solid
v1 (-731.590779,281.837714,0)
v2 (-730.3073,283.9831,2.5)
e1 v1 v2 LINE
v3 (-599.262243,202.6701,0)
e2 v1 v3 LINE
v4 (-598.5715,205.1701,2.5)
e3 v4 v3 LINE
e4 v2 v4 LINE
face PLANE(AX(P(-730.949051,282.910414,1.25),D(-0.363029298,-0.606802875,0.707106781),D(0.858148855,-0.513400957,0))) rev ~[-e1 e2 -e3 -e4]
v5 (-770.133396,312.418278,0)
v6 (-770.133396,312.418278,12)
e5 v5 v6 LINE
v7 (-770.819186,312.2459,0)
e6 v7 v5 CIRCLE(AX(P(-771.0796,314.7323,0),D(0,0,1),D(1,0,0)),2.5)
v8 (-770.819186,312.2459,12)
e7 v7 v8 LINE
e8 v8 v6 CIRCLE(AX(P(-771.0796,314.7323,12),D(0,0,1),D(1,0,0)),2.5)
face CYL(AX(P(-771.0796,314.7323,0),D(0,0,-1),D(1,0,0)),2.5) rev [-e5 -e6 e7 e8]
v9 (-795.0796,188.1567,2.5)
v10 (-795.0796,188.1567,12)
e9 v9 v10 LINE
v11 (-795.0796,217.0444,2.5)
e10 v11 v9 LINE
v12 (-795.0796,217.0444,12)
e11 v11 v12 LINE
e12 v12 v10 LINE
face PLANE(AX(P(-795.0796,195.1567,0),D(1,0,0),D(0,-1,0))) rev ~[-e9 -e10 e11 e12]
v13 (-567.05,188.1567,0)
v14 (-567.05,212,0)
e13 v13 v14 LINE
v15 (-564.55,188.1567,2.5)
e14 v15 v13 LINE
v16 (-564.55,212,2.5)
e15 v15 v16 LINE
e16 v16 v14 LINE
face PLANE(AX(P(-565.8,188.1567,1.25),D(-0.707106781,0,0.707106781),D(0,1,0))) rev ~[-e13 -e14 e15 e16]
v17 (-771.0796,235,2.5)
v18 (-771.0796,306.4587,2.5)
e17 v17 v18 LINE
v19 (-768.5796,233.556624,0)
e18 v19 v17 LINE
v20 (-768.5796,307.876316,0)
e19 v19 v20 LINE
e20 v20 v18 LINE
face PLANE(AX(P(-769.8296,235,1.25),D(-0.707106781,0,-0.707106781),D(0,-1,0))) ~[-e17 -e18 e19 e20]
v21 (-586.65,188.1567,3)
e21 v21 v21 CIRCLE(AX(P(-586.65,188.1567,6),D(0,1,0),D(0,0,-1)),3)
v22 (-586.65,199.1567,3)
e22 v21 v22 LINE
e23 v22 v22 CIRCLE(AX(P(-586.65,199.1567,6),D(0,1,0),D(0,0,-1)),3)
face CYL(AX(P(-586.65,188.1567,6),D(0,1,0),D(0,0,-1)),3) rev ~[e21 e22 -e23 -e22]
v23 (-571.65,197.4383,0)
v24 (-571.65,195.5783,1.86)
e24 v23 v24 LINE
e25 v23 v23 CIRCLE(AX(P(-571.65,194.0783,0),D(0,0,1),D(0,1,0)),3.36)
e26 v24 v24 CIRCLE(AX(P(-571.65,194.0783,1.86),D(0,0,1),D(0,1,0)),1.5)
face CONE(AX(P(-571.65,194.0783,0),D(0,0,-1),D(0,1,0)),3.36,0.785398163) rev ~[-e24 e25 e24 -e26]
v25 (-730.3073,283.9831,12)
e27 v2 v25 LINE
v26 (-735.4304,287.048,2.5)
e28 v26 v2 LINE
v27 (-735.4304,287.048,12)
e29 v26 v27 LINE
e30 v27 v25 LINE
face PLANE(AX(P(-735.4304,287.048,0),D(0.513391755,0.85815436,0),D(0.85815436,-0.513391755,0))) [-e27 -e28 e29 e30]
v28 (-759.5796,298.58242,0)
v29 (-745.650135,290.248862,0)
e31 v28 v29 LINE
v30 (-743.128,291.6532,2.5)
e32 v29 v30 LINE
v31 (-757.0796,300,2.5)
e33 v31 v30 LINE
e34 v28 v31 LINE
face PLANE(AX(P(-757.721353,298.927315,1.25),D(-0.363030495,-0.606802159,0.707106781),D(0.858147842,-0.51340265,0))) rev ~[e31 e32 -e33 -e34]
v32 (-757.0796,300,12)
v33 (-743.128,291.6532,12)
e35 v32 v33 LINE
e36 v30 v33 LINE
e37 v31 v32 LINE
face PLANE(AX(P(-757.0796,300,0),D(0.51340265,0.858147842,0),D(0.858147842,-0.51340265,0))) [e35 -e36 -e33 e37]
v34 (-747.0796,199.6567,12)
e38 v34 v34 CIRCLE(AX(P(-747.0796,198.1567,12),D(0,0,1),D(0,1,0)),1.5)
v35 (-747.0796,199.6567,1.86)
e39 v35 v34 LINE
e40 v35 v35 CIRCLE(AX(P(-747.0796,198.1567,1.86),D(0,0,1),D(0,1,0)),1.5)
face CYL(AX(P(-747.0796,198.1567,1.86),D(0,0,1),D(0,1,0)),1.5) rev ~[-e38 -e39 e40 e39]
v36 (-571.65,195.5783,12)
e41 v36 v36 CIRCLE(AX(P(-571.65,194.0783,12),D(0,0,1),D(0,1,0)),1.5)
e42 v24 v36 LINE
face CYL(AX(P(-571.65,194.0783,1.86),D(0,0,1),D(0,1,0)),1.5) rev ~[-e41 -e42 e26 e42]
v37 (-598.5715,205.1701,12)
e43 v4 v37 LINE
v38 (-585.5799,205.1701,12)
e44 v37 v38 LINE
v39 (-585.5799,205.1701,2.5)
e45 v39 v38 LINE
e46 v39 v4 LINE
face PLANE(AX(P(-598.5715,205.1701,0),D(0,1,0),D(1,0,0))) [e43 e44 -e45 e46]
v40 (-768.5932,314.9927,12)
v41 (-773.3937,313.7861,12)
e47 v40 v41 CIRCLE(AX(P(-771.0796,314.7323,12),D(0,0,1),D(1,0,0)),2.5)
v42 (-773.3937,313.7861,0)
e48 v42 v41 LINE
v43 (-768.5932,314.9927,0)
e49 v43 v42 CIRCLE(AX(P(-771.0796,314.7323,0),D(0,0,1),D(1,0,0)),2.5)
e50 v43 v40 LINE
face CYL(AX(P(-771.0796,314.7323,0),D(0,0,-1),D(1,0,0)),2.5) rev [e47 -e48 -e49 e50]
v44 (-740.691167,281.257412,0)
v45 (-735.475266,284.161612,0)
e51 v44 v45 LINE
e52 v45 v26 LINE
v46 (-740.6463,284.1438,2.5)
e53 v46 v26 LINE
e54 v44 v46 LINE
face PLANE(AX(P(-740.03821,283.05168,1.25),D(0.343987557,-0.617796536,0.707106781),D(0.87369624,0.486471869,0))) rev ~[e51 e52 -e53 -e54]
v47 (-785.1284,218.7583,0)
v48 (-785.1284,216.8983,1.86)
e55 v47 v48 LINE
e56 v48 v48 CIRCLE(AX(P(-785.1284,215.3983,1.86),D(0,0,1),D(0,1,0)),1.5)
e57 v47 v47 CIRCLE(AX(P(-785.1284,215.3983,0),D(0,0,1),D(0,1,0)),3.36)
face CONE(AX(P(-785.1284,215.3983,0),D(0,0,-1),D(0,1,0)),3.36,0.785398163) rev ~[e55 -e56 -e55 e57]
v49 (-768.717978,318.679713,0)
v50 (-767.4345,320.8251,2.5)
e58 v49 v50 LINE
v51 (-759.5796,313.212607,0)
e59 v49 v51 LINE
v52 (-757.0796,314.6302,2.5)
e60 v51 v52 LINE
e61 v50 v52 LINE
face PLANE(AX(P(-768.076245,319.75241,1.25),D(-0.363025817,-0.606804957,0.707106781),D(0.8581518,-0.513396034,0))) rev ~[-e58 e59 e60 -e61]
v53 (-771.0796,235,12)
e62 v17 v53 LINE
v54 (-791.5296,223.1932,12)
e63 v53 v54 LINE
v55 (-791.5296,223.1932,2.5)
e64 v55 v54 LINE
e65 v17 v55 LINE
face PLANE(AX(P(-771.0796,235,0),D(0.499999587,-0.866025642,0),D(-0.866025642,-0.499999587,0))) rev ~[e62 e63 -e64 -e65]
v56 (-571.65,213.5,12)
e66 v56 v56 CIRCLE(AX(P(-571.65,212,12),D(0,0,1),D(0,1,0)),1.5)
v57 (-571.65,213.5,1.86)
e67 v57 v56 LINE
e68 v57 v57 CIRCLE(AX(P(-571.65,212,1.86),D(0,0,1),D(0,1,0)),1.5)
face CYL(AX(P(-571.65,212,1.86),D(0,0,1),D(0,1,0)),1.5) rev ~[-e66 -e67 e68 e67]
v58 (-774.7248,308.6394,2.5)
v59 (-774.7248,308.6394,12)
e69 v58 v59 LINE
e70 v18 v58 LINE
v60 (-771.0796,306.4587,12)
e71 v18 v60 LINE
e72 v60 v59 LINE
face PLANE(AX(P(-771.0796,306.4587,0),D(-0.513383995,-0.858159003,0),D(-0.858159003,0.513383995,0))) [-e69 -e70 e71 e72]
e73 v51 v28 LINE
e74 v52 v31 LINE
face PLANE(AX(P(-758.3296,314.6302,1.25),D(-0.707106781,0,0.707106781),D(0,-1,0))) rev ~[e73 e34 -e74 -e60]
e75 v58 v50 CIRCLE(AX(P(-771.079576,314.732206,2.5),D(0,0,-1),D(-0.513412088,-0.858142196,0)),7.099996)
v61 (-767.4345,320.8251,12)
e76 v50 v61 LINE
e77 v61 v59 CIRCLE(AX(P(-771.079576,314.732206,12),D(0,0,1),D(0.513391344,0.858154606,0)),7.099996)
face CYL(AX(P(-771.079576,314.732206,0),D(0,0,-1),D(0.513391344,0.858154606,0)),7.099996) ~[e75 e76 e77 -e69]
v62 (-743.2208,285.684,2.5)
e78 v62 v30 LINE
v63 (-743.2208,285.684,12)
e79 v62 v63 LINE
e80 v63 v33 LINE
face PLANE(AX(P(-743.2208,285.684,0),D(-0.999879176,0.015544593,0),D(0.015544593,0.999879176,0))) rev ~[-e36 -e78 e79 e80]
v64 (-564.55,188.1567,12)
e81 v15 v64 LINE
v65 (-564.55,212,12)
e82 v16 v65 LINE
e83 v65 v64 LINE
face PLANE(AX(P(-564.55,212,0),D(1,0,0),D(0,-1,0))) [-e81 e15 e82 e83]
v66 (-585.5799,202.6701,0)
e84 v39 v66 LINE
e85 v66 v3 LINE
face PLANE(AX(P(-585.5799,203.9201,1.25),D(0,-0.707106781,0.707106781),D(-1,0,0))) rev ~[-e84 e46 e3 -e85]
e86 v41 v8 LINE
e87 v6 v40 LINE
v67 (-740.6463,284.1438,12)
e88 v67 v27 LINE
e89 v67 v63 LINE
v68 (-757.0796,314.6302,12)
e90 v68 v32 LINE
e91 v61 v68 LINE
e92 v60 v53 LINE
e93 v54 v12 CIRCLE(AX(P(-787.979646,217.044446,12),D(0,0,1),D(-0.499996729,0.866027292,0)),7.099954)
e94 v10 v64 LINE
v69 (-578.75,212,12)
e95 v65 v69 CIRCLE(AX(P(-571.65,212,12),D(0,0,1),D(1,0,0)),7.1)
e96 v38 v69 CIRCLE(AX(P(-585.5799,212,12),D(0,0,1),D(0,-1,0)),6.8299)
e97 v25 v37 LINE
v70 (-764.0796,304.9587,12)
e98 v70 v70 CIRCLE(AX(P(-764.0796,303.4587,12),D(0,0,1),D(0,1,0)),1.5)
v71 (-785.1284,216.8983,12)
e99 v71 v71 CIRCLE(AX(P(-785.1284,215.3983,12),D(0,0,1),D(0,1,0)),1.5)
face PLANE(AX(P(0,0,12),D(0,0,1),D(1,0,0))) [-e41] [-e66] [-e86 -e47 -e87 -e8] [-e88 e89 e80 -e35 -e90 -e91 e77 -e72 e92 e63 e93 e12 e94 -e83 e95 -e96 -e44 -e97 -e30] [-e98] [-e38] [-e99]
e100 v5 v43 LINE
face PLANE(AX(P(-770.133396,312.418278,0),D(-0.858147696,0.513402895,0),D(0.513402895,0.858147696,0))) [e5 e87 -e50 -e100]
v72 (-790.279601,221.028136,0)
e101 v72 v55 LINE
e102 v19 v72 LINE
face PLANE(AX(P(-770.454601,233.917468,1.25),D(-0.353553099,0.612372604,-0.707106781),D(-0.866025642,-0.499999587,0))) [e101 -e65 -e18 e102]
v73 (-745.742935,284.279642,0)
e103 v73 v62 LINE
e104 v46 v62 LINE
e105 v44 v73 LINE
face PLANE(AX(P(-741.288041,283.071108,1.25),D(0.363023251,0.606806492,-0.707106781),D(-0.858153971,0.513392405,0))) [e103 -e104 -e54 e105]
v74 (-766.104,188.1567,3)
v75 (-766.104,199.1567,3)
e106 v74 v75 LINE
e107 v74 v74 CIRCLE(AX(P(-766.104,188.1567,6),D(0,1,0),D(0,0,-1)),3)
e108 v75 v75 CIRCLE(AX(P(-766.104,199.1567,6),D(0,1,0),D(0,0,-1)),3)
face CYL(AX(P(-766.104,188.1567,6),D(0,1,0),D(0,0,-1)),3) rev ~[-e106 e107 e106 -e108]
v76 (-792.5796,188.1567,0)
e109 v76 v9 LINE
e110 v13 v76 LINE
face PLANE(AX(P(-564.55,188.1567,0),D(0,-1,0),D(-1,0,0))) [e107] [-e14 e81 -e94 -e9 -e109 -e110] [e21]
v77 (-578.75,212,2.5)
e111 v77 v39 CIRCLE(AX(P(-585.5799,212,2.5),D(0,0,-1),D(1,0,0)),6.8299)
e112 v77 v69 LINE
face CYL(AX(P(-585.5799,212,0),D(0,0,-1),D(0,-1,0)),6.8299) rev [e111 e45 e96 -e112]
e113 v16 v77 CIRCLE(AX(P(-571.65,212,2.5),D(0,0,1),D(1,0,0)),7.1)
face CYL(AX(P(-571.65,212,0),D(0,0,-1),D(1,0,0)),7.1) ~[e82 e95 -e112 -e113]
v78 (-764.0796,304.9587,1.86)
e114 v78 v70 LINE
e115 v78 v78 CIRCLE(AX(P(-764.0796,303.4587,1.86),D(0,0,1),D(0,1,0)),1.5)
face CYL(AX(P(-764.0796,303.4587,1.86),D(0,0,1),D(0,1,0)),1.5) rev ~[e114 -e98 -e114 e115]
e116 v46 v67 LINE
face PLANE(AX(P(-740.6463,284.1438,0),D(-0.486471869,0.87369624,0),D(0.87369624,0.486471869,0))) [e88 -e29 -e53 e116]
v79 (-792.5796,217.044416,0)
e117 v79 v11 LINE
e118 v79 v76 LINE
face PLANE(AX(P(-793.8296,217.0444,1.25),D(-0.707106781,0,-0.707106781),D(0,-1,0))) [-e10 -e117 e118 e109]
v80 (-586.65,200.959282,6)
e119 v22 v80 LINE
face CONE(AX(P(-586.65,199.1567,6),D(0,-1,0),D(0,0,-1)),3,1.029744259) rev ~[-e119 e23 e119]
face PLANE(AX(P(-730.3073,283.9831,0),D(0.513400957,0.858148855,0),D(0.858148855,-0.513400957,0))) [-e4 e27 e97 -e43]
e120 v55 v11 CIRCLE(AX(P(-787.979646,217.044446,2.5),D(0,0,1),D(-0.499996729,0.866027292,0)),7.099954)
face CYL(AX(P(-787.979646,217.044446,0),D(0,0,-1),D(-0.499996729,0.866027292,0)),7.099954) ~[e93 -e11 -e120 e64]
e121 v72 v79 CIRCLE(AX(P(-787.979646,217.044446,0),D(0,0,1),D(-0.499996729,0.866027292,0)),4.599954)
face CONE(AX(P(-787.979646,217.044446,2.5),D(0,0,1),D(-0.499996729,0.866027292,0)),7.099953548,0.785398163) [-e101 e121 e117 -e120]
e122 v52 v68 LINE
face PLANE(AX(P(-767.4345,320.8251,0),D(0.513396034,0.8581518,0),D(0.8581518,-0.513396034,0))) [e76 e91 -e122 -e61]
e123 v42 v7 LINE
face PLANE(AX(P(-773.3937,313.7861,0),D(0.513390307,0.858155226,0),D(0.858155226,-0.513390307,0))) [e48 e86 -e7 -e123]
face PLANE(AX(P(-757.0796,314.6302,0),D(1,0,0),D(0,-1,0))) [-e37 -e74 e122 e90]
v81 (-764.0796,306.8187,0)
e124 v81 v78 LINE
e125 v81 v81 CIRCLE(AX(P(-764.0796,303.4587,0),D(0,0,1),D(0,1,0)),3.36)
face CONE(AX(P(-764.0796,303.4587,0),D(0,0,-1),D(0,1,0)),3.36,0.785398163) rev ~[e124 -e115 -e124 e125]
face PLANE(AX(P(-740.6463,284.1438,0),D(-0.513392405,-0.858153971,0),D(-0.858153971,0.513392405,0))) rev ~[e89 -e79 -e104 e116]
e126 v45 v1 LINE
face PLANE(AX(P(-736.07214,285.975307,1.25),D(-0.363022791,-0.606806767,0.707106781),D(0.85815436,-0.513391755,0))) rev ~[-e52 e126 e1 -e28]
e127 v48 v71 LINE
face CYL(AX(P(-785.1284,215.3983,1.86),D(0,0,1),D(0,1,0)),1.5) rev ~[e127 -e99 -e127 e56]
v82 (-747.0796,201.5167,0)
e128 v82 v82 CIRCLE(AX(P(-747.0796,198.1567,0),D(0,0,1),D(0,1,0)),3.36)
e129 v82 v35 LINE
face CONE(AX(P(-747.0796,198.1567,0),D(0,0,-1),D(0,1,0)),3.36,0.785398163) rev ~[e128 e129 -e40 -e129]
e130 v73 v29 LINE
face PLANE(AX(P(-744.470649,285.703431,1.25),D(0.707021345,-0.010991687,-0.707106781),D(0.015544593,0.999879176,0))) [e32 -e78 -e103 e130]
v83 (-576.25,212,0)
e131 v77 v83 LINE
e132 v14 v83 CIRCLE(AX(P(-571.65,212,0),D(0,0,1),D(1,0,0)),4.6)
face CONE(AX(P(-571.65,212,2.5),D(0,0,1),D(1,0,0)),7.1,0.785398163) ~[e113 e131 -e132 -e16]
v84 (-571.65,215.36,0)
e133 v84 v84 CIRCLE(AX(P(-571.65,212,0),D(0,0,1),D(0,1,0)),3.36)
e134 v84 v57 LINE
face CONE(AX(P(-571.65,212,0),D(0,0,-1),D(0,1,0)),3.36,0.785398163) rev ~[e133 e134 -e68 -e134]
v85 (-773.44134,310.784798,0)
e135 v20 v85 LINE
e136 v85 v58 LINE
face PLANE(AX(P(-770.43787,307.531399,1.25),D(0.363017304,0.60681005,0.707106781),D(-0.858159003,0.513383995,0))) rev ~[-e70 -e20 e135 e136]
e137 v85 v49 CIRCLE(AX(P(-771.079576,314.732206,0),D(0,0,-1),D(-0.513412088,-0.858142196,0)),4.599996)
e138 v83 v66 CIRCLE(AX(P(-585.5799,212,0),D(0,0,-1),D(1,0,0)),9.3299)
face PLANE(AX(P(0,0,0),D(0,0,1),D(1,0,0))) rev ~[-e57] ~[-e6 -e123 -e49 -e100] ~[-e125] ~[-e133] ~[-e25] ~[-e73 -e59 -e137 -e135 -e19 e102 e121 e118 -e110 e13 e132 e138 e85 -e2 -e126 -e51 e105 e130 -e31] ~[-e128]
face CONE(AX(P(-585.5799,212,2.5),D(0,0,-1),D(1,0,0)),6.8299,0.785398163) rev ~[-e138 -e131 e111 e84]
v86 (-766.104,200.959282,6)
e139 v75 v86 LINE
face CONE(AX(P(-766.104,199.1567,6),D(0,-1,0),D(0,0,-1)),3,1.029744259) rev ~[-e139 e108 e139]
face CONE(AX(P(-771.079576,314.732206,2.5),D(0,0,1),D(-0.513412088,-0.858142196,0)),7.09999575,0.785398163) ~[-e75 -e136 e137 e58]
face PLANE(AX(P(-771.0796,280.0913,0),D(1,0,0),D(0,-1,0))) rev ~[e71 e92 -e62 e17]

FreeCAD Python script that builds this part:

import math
import FreeCAD as App
import Part
import Sketcher
from FreeCAD import Vector
Q = App.Units.Quantity


def edges_at(feature, points):
    """Names of the edges that pass closest to the given points."""
    edges = feature.Shape.Edges
    near = lambda p: min(range(len(edges)), key=lambda i: edges[i].distToShape(Part.Vertex(*p))[0])
    return sorted({f"Edge{near(p) + 1}" for p in points})

doc = App.newDocument("Part")
body = doc.addObject("PartDesign::Body", "Body")

# Sketch on XY plane
sketch1 = body.newObject("Sketcher::SketchObject", "Sketch")
sketch1.AttachmentSupport = (doc.getObject("XY_Plane"), [""])
sketch1.MapMode = "FlatFace"
sketch1.addGeometry([
    Part.ArcOfCircle(Part.Circle(Vector(-571.6, 212, 0), Vector(0, 0, 1), 7.1), math.radians(0), math.radians(180)),  # 0
    Part.ArcOfCircle(Part.Circle(Vector(-585.6, 212, 0), Vector(0, 0, 1), 6.8), math.radians(-90), math.radians(0)),  # 1
    Part.LineSegment(Vector(-585.6, 205.2, 0), Vector(-598.6, 205.2, 0)),  # 2
    Part.LineSegment(Vector(-598.6, 205.2, 0), Vector(-730.3, 284, 0)),  # 3
    Part.LineSegment(Vector(-730.3, 284, 0), Vector(-735.4, 287, 0)),  # 4
    Part.LineSegment(Vector(-735.4, 287, 0), Vector(-740.6, 284.1, 0)),  # 5
    Part.LineSegment(Vector(-740.6, 284.1, 0), Vector(-743.2, 285.7, 0)),  # 6
    Part.LineSegment(Vector(-743.2, 285.7, 0), Vector(-743.1, 291.7, 0)),  # 7
    Part.LineSegment(Vector(-743.1, 291.7, 0), Vector(-757.1, 300, 0)),  # 8
    Part.LineSegment(Vector(-757.1, 300, 0), Vector(-757.1, 314.6, 0)),  # 9
    Part.LineSegment(Vector(-757.1, 314.6, 0), Vector(-767.4, 320.8, 0)),  # 10
    Part.ArcOfCircle(Part.Circle(Vector(-771.1, 314.7, 0), Vector(0, 0, 1), 7.1), math.radians(59), math.radians(239)),  # 11
    Part.LineSegment(Vector(-774.7, 308.6, 0), Vector(-771.1, 306.5, 0)),  # 12
    Part.LineSegment(Vector(-771.1, 306.5, 0), Vector(-771.1, 235, 0)),  # 13
    Part.LineSegment(Vector(-771.1, 235, 0), Vector(-791.5, 223.2, 0)),  # 14
    Part.ArcOfCircle(Part.Circle(Vector(-788, 217, 0), Vector(0, 0, 1), 7.1), math.radians(120), math.radians(180)),  # 15
    Part.LineSegment(Vector(-795.1, 217, 0), Vector(-795.1, 188.2, 0)),  # 16
    Part.LineSegment(Vector(-795.1, 188.2, 0), Vector(-564.5, 188.2, 0)),  # 17
    Part.LineSegment(Vector(-564.5, 188.2, 0), Vector(-564.5, 212, 0)),  # 18
    Part.ArcOfCircle(Part.Circle(Vector(-771.1, 314.7, 0), Vector(0, 0, 1), 2.5), math.radians(6), math.radians(202)),  # 19
    Part.LineSegment(Vector(-768.6, 315, 0), Vector(-770.1, 312.4, 0)),  # 20
    Part.ArcOfCircle(Part.Circle(Vector(-771.1, 314.7, 0), Vector(0, 0, 1), 2.5), math.radians(-84.02), math.radians(-67.76)),  # 21
    Part.LineSegment(Vector(-770.8, 312.2, 0), Vector(-773.4, 313.8, 0)),  # 22
], False)
sketch1.addConstraint([
    Sketcher.Constraint("Tangent", 0, 2, 1, 2),
    Sketcher.Constraint("Tangent", 1, 1, 2, 1),
    Sketcher.Constraint("Coincident", 2, 2, 3, 1),
    Sketcher.Constraint("Coincident", 3, 2, 4, 1),
    Sketcher.Constraint("Coincident", 4, 2, 5, 1),
    Sketcher.Constraint("Coincident", 5, 2, 6, 1),
    Sketcher.Constraint("Coincident", 6, 2, 7, 1),
    Sketcher.Constraint("Coincident", 7, 2, 8, 1),
    Sketcher.Constraint("Coincident", 8, 2, 9, 1),
    Sketcher.Constraint("Coincident", 9, 2, 10, 1),
    Sketcher.Constraint("Tangent", 10, 2, 11, 1),
    Sketcher.Constraint("Tangent", 11, 2, 12, 1),
    Sketcher.Constraint("Coincident", 12, 2, 13, 1),
    Sketcher.Constraint("Coincident", 13, 2, 14, 1),
    Sketcher.Constraint("Tangent", 14, 2, 15, 1),
    Sketcher.Constraint("Tangent", 15, 2, 16, 1),
    Sketcher.Constraint("Coincident", 16, 2, 17, 1),
    Sketcher.Constraint("Coincident", 17, 2, 18, 1),
    Sketcher.Constraint("Tangent", 18, 2, 0, 1),
    Sketcher.Constraint("Coincident", 19, 1, 20, 1),
    Sketcher.Constraint("Coincident", 20, 2, 21, 2),
    Sketcher.Constraint("Coincident", 21, 1, 22, 1),
    Sketcher.Constraint("Coincident", 22, 2, 19, 2),
    Sketcher.Constraint("Horizontal", 2),
    Sketcher.Constraint("Vertical", 9),
    Sketcher.Constraint("Vertical", 13),
    Sketcher.Constraint("Vertical", 16),
    Sketcher.Constraint("Horizontal", 17),
    Sketcher.Constraint("Vertical", 18),
    Sketcher.Constraint("Coincident", 19, 3, 11, 3),
    Sketcher.Constraint("Coincident", 21, 3, 11, 3),
    Sketcher.Constraint("Equal", 0, 11),
    Sketcher.Constraint("Equal", 11, 15),
    Sketcher.Constraint("Equal", 19, 21),
    Sketcher.Constraint("Parallel", 3, 4),
    Sketcher.Constraint("Parallel", 4, 6),
    Sketcher.Constraint("Parallel", 6, 8),
    Sketcher.Constraint("Parallel", 8, 10),
    Sketcher.Constraint("Parallel", 10, 12),
    Sketcher.Constraint("Perpendicular", 12, 20),
    Sketcher.Constraint("Perpendicular", 20, 22),
    Sketcher.Constraint("Horizontal", 0, 3, 1, 3),
    Sketcher.Constraint("Vertical", 21, 3, 12, 2),
    Sketcher.Constraint("Equal", 4, 5),
    Sketcher.Constraint("Equal", 5, 7),
    Sketcher.Constraint("Equal", 6, 20),
    Sketcher.Constraint("Equal", 20, 22),
    Sketcher.Constraint("Radius", 0, 7.1),
    Sketcher.Constraint("Radius", 19, 2.5),
    Sketcher.Constraint("Distance", 6, 3.0),
    Sketcher.Constraint("DistanceY", -1, 1, 8, 2, 300.0),
    Sketcher.Constraint("DistanceX", 11, 3, 8, 2, 14.0),
    Sketcher.Constraint("DistanceX", 15, 2, 13, 2, 24.0),
    Sketcher.Constraint("Angle", 20, Q("-120.8908 deg")),
    Sketcher.Constraint("Angle", 14, Q("-150 deg")),
    Sketcher.Constraint("Radius", 1, 6.83),
    Sketcher.Constraint("DistanceY", -1, 1, 0, 3, 212.0),
    Sketcher.Constraint("DistanceY", -1, 1, 13, 2, 235.0),
    Sketcher.Constraint("DistanceY", 8, 2, 10, 2, 20.825),
    Sketcher.Constraint("Angle", 5, Q("-150.891 deg")),
    Sketcher.Constraint("Angle", 7, Q("89.1093 deg")),
    Sketcher.Constraint("Distance", 4, 5.97),
    Sketcher.Constraint("DistanceX", 0, 3, -1, 1, 571.65),
    Sketcher.Constraint("DistanceY", 14, 2, 7, 2, 68.46),
    Sketcher.Constraint("DistanceX", 2, 2, 2, 1, 12.9916),
    Sketcher.Constraint("DistanceY", 16, 2, 16, 1, 28.8877),
])
pad1 = body.newObject("PartDesign::Pad", "Pad")
pad1.Profile = sketch1
pad1.Length = 12
doc.recompute()

chamfer = body.newObject("PartDesign::Chamfer", "Chamfer")
chamfer.Base = (pad1, edges_at(pad1, [
    (-564.55, 200.078, 0),
    (-571.65, 219.1, 0),
    (-580.75, 207.171, 0),
    (-592.076, 205.17, 0),
    (-667.001, 246.109, 0),
    (-743.174, 288.669, 0),
    (-741.933, 284.914, 0),
    (-738.038, 285.596, 0),
    (-750.104, 295.827, 0),
    (-757.08, 307.315, 0),
    (-762.257, 317.728, 0),
    (-777.173, 318.377, 0),
    (-772.902, 307.549, 0),
    (-771.08, 270.729, 0),
    (-781.305, 229.097, 0),
    (-794.128, 220.594, 0),
    (-795.08, 202.601, 0),
]))
chamfer.Size = 2.5

# Sketch on XY plane
sketch2 = body.newObject("Sketcher::SketchObject", "Sketch001")
sketch2.AttachmentSupport = (doc.getObject("XY_Plane"), [""])
sketch2.MapMode = "FlatFace"
sketch2.addGeometry([
    Part.Circle(Vector(-571.6, 212, 0), Vector(0, 0, 1), 1.5),  # 0
    Part.Circle(Vector(-571.6, 194.1, 0), Vector(0, 0, 1), 1.5),  # 1
    Part.Circle(Vector(-747.1, 198.2, 0), Vector(0, 0, 1), 1.5),  # 2
    Part.Circle(Vector(-785.1, 215.4, 0), Vector(0, 0, 1), 1.5),  # 3
    Part.Circle(Vector(-764.1, 303.5, 0), Vector(0, 0, 1), 1.5),  # 4
], False)
sketch2.addConstraint([
    Sketcher.Constraint("Equal", 0, 1),
    Sketcher.Constraint("Equal", 1, 2),
    Sketcher.Constraint("Equal", 2, 3),
    Sketcher.Constraint("Equal", 3, 4),
    Sketcher.Constraint("Vertical", 0, 3, 1, 3),
    Sketcher.Constraint("Diameter", 0, 3.0),
    Sketcher.Constraint("DistanceY", -1, 1, 0, 3, 212.0),
    Sketcher.Constraint("DistanceX", 4, 3, 2, 3, 17.0),
    Sketcher.Constraint("DistanceX", 0, 3, -1, 1, 571.65),
    Sketcher.Constraint("DistanceY", 1, 3, 3, 3, 21.32),
    Sketcher.Constraint("DistanceY", 2, 3, 4, 3, 105.302),
    Sketcher.Constraint("DistanceY", -1, 1, 1, 3, 194.0783),
    Sketcher.Constraint("DistanceX", 2, 3, -1, 1, 747.0796),
    Sketcher.Constraint("DistanceY", -1, 1, 2, 3, 198.1567),
    Sketcher.Constraint("DistanceX", 3, 3, -1, 1, 785.1284),
])
doc.recompute()
hole = body.newObject("PartDesign::Hole", "Hole")
hole.Profile = sketch2
hole.ThreadType = "None"
hole.Diameter = 3
hole.DepthType = "ThroughAll"
hole.HoleCutType = "Countersink"
hole.HoleCutDiameter = 6.72
hole.HoleCutCountersinkAngle = 90
hole.Reversed = True

# Sketch on XZ plane
sketch3 = body.newObject("Sketcher::SketchObject", "Sketch002")
sketch3.AttachmentSupport = (doc.getObject("XZ_Plane"), [""])
sketch3.MapMode = "FlatFace"
sketch3.AttachmentOffset = App.Placement(Vector(0, 0, -188.1567), App.Rotation())
sketch3.addGeometry([
    Part.Circle(Vector(-586.6, 6, 0), Vector(0, 0, 1), 3),
    Part.Circle(Vector(-766.1, 6, 0), Vector(0, 0, 1), 3),
], False)
sketch3.addConstraint([
    Sketcher.Constraint("Equal", 0, 1),
    Sketcher.Constraint("Horizontal", 0, 3, 1, 3),
    Sketcher.Constraint("Diameter", 0, 6.0),
    Sketcher.Constraint("DistanceY", -1, 1, 0, 3, 6.0),
    Sketcher.Constraint("DistanceX", 0, 3, -1, 1, 586.65),
    Sketcher.Constraint("DistanceX", 1, 3, -1, 1, 766.104),
])
doc.recompute()
hole2 = body.newObject("PartDesign::Hole", "Hole001")
hole2.Profile = sketch3
hole2.ThreadType = "None"
hole2.Diameter = 6
hole2.DepthType = "Dimension"
hole2.Depth = 11
hole2.DrillPoint = "Angled"
hole2.DrillPointAngle = 118

doc.recompute()
